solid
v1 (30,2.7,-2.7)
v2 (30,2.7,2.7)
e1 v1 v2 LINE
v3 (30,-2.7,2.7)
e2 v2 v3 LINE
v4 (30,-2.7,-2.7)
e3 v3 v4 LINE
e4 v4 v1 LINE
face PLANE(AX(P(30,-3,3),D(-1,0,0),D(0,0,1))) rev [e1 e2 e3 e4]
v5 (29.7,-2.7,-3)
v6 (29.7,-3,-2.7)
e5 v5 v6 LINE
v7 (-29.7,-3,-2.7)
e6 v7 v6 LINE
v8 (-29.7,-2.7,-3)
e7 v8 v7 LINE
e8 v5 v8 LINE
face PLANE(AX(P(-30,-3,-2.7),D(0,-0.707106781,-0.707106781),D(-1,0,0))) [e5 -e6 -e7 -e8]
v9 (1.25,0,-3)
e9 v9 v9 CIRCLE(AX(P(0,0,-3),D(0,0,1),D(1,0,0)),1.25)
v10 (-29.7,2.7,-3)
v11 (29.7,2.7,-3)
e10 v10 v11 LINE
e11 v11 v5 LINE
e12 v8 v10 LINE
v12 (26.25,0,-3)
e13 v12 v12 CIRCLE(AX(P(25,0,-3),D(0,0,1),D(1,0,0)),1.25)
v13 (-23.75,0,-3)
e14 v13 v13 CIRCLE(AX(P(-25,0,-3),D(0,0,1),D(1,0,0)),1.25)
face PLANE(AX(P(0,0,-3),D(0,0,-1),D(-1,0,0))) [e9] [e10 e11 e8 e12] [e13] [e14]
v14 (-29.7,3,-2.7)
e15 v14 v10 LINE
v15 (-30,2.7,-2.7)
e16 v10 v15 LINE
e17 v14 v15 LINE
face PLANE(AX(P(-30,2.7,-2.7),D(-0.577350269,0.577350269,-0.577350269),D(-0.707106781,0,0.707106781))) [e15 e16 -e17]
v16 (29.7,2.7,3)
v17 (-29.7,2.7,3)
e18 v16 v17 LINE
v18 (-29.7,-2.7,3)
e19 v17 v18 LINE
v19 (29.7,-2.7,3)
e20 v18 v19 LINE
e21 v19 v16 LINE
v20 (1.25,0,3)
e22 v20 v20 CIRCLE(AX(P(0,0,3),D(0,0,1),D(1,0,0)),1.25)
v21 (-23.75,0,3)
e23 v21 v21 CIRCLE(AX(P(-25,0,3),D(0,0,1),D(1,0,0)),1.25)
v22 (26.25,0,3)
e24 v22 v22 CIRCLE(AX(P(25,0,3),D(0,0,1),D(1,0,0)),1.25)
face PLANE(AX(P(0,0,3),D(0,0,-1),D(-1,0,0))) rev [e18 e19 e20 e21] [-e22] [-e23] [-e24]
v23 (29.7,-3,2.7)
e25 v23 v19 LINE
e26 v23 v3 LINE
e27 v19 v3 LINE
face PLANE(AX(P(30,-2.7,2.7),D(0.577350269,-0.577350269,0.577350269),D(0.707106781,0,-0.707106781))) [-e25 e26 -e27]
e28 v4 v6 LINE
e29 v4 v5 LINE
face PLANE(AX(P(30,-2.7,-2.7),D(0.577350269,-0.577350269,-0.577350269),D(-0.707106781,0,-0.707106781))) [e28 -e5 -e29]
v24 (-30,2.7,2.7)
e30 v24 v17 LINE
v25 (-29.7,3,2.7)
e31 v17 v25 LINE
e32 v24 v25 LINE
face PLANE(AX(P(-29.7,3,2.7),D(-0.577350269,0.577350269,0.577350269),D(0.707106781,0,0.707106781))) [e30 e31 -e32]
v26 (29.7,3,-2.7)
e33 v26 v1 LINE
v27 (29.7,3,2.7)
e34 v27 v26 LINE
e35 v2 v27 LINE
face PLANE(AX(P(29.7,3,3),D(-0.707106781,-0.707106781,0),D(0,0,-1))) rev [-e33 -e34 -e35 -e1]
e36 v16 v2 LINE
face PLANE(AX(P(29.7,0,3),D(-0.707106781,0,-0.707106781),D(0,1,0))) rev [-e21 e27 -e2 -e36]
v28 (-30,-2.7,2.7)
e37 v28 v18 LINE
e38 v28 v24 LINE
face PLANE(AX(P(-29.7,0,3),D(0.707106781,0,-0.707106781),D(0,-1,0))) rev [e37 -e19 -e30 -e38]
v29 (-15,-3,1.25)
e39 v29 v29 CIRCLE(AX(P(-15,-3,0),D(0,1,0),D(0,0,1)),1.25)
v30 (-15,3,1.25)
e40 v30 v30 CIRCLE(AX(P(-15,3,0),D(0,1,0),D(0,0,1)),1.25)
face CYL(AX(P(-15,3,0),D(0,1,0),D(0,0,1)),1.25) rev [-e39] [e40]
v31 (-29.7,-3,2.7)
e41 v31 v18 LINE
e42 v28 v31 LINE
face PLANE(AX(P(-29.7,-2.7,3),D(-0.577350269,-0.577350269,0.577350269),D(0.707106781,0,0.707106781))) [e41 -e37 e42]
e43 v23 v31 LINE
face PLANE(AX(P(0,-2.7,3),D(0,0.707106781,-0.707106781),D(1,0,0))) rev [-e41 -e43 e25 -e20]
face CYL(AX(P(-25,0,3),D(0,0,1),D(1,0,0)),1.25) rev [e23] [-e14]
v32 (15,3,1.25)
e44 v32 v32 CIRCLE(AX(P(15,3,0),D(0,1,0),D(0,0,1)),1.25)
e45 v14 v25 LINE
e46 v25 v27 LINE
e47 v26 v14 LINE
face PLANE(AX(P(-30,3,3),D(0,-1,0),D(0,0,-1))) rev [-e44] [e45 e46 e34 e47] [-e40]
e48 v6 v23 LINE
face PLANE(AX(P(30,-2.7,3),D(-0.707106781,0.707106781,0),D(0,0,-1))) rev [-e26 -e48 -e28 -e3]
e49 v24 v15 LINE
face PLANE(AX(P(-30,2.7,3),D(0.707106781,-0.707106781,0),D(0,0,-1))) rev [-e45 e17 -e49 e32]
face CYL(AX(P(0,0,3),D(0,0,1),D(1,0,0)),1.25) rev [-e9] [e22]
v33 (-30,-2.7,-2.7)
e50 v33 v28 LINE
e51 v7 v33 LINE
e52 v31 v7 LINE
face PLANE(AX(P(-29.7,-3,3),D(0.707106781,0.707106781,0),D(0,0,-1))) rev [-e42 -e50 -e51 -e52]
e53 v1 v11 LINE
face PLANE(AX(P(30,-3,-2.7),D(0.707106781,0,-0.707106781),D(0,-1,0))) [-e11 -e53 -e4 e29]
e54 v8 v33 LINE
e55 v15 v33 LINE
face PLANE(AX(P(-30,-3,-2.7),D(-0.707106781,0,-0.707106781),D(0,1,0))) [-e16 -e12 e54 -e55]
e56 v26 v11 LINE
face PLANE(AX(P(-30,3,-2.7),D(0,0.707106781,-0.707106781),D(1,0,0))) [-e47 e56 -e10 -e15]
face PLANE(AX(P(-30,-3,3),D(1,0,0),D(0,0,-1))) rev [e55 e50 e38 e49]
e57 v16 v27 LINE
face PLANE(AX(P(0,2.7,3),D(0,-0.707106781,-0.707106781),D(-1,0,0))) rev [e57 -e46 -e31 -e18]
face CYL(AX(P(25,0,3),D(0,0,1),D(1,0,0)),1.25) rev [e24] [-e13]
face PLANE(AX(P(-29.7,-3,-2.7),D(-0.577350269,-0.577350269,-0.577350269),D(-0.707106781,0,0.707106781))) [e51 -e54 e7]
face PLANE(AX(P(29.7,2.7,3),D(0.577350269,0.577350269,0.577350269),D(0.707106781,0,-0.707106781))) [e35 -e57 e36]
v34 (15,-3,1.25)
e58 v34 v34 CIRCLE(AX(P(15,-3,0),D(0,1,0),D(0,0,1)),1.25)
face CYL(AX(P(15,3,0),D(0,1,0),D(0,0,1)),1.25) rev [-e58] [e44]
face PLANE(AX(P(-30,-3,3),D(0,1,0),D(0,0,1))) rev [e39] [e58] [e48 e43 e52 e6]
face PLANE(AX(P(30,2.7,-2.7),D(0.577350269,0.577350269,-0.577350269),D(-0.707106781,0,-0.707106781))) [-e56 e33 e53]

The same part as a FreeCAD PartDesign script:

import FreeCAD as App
import Part
import Sketcher
from FreeCAD import Vector
Q = App.Units.Quantity


def edges_at(feature, points):
    """Names of the edges that pass closest to the given points."""
    edges = feature.Shape.Edges
    near = lambda p: min(range(len(edges)), key=lambda i: edges[i].distToShape(Part.Vertex(*p))[0])
    return sorted({f"Edge{near(p) + 1}" for p in points})

doc = App.newDocument("Part")
body = doc.addObject("PartDesign::Body", "Body")

sketch1 = body.newObject("Sketcher::SketchObject", "Sketch")
sketch1.AttachmentSupport = (doc.getObject("XY_Plane"), [""])
sketch1.MapMode = "FlatFace"
sketch1.addGeometry([
    Part.LineSegment(Vector(-30, 3, 0), Vector(-30, -3, 0)),
    Part.LineSegment(Vector(-30, -3, 0), Vector(30, -3, 0)),
    Part.LineSegment(Vector(30, -3, 0), Vector(30, 3, 0)),
    Part.LineSegment(Vector(30, 3, 0), Vector(-30, 3, 0)),
], False)
sketch1.addConstraint([
    Sketcher.Constraint("Coincident", 0, 2, 1, 1),
    Sketcher.Constraint("Coincident", 1, 2, 2, 1),
    Sketcher.Constraint("Coincident", 2, 2, 3, 1),
    Sketcher.Constraint("Coincident", 3, 2, 0, 1),
    Sketcher.Constraint("Vertical", 0),
    Sketcher.Constraint("Horizontal", 1),
    Sketcher.Constraint("Vertical", 2),
    Sketcher.Constraint("Horizontal", 3),
    Sketcher.Constraint("Symmetric", 0, 2, 2, 2, -1, 1),
    Sketcher.Constraint("DistanceX", 1, 1, 1, 2, Q("60 mm")),
    Sketcher.Constraint("DistanceY", 0, 2, 0, 1, Q("6 mm")),
])
pad1 = body.newObject("PartDesign::Pad", "Pad")
pad1.Profile = sketch1
pad1.Length = 6
pad1.Midplane = True

sketch2 = body.newObject("Sketcher::SketchObject", "Sketch001")
sketch2.AttachmentSupport = (doc.getObject("XY_Plane"), [""])
sketch2.MapMode = "FlatFace"
sketch2.AttachmentOffset = App.Placement(Vector(0, 0, 3), App.Rotation())
sketch2.addGeometry([
    Part.Circle(Vector(-25, 0, 0), Vector(0, 0, 1), 1.2),
    Part.Circle(Vector(0, 0, 0), Vector(0, 0, 1), 1.2),
    Part.Circle(Vector(25, 0, 0), Vector(0, 0, 1), 1.2),
], False)
sketch2.addConstraint([
    Sketcher.Constraint("Coincident", 1, 3, -1, 1),
    Sketcher.Constraint("Equal", 0, 1),
    Sketcher.Constraint("Equal", 1, 2),
    Sketcher.Constraint("Symmetric", 0, 3, 2, 3, -1, 1),
    Sketcher.Constraint("PointOnObject", 0, 3, -1),
    Sketcher.Constraint("Diameter", 0, Q("2.5 mm")),
    Sketcher.Constraint("DistanceX", 0, 3, -1, 1, Q("25 mm")),
])
doc.recompute()
hole = body.newObject("PartDesign::Hole", "Hole")
hole.Profile = sketch2
hole.ThreadType = "None"
hole.Diameter = 2.5
hole.DepthType = "ThroughAll"

sketch3 = body.newObject("Sketcher::SketchObject", "Sketch002")
sketch3.AttachmentSupport = (doc.getObject("XZ_Plane"), [""])
sketch3.MapMode = "FlatFace"
sketch3.AttachmentOffset = App.Placement(Vector(0, 0, -3), App.Rotation())
sketch3.addGeometry([
    Part.Circle(Vector(-15, 0, 0), Vector(0, 0, 1), 1.2),
    Part.Circle(Vector(15, 0, 0), Vector(0, 0, 1), 1.2),
], False)
sketch3.addConstraint([
    Sketcher.Constraint("Equal", 0, 1),
    Sketcher.Constraint("Symmetric", 0, 3, 1, 3, -1, 1),
    Sketcher.Constraint("PointOnObject", 0, 3, -1),
    Sketcher.Constraint("Diameter", 0, Q("2.5 mm")),
    Sketcher.Constraint("DistanceX", 0, 3, -1, 1, Q("15 mm")),
])
doc.recompute()
hole2 = body.newObject("PartDesign::Hole", "Hole001")
hole2.Profile = sketch3
hole2.ThreadType = "None"
hole2.Diameter = 2.5
hole2.DepthType = "ThroughAll"
hole2.Reversed = True
doc.recompute()

chamfer = body.newObject("PartDesign::Chamfer", "Chamfer")
chamfer.Base = (hole2, edges_at(hole2, [
    (-30, 0, 3),
    (0, -3, 3),
    (30, 0, 3),
    (0, -3, -3),
    (-30, 0, -3),
    (0, 3, -3),
    (30, 0, -3),
    (30, -3, 0),
    (-30, -3, 0),
    (-30, 3, 0),
    (30, 3, 0),
    (0, 3, 3),
]))
chamfer.Size = 0.3

doc.recompute()
